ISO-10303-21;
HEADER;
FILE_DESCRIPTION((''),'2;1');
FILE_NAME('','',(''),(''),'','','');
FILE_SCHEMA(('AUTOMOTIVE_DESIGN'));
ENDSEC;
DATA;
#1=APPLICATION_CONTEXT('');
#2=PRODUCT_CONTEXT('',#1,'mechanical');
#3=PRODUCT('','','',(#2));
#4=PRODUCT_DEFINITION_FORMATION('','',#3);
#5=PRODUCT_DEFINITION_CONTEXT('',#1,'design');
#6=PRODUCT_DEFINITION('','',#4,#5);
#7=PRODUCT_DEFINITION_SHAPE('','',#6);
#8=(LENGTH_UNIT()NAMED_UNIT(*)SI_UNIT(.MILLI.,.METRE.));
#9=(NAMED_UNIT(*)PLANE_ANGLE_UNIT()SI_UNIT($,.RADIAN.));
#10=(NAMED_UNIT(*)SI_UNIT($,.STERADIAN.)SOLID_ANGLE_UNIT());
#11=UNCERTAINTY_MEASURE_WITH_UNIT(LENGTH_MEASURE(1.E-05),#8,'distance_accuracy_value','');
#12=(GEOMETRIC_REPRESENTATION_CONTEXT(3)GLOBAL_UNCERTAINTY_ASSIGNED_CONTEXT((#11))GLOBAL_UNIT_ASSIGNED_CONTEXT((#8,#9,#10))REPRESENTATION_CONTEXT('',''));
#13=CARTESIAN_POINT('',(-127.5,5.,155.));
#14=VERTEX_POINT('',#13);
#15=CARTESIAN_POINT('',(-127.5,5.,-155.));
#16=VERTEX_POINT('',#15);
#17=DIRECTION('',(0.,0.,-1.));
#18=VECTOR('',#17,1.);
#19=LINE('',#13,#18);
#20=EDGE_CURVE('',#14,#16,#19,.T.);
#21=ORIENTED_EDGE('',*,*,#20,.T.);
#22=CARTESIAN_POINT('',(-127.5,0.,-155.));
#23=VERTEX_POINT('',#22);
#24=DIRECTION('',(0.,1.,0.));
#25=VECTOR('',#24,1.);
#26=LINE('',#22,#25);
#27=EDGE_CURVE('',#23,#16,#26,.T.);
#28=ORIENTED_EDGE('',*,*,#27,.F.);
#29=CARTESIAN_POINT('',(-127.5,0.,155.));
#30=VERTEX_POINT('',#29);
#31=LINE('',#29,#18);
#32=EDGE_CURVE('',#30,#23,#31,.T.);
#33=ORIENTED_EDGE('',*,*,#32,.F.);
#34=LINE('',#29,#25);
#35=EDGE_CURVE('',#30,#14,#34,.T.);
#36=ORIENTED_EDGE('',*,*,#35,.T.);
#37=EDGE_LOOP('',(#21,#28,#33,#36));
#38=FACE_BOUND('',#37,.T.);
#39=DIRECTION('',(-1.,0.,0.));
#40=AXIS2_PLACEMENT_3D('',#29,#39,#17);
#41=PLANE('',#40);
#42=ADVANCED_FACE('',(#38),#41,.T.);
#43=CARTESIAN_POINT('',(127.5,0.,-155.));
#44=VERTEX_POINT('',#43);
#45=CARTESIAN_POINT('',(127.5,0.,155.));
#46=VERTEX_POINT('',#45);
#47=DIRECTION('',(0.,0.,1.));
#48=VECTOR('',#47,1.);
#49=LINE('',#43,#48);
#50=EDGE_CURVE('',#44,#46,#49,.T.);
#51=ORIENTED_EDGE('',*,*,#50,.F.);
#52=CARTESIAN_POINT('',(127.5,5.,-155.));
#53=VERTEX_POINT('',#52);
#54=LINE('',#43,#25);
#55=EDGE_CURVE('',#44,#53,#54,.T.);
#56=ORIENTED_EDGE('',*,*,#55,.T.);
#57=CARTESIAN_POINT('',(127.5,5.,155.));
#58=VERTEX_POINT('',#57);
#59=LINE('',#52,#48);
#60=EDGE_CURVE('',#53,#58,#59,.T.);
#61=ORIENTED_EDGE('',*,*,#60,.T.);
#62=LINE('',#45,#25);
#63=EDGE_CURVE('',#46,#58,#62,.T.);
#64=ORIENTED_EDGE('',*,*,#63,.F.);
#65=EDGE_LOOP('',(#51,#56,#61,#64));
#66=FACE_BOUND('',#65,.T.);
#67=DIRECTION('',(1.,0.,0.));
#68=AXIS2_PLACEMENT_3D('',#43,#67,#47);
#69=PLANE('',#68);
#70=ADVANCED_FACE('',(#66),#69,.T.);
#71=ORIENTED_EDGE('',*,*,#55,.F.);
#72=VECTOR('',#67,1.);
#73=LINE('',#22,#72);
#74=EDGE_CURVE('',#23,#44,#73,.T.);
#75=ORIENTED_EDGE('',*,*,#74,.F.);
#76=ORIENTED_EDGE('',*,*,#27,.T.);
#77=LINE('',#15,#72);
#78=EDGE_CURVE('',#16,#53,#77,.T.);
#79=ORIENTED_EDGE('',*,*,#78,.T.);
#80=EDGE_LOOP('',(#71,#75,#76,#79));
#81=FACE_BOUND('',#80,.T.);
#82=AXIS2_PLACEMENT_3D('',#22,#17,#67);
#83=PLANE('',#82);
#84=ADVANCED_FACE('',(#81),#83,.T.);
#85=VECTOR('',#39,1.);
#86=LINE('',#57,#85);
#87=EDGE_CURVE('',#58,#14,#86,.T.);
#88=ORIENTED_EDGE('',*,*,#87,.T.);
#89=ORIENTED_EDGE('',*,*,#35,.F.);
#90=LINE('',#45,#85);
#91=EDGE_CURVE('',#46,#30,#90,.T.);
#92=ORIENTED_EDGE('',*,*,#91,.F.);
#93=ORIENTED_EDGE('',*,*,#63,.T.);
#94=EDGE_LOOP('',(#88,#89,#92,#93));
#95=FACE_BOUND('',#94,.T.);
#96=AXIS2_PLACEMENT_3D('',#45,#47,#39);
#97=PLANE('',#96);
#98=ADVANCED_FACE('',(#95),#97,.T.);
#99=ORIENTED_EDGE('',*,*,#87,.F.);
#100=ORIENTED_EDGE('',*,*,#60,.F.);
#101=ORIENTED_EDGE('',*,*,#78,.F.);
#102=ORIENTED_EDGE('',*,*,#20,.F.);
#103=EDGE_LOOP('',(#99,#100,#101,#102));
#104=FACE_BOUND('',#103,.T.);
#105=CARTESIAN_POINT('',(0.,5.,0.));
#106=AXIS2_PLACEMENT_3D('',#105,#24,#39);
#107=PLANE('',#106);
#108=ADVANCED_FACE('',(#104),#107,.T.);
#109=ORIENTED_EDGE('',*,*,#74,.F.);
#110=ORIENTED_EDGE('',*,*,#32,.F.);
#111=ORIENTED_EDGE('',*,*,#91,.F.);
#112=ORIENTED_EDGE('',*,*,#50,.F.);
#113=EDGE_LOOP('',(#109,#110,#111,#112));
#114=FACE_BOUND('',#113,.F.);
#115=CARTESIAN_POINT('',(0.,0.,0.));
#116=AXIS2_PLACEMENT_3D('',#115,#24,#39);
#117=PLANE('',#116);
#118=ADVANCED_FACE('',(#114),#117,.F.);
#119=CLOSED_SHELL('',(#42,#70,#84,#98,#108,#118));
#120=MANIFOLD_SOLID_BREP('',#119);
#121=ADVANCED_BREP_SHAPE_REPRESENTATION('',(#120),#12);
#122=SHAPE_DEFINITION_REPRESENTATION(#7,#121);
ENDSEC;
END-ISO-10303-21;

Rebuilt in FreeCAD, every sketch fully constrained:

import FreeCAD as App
import Part
import Sketcher


def add_polygon(sketch, points):
    """Adds a closed chain of lines whose ends are joined by coincident constraints."""
    first, n = sketch.GeometryCount, len(points)
    for a, b in zip(points, points[1:] + points[:1]):
        sketch.addGeometry(Part.LineSegment(App.Vector(*a, 0), App.Vector(*b, 0)), False)
    for i in range(n):
        sketch.addConstraint(Sketcher.Constraint("Coincident", first + i, 2, first + (i + 1) % n, 1))

doc = App.newDocument("Part")
body = doc.addObject("PartDesign::Body", "Body")

sketch1 = body.newObject("Sketcher::SketchObject", "Sketch")
sketch1.AttachmentSupport = (doc.getObject("XZ_Plane"), [""])
sketch1.MapMode = "FlatFace"
add_polygon(sketch1, [(127.5, -155), (-127.5, -155), (-127.5, 155), (127.5, 155)])
sketch1.addConstraint(Sketcher.Constraint("Horizontal", 0))
sketch1.addConstraint(Sketcher.Constraint("Vertical", 1))
sketch1.addConstraint(Sketcher.Constraint("Horizontal", 2))
sketch1.addConstraint(Sketcher.Constraint("Vertical", 3))
sketch1.addConstraint(Sketcher.Constraint("Symmetric", 0, 2, 2, 2, -1, 1))
sketch1.addConstraint(Sketcher.Constraint("DistanceX", 0, 2, 0, 1, 255.0))
sketch1.addConstraint(Sketcher.Constraint("DistanceY", 1, 1, 1, 2, 310.0))
pad1 = body.newObject("PartDesign::Pad", "Pad")
pad1.Profile = sketch1
pad1.Length = 5
pad1.Reversed = True

doc.recompute()
